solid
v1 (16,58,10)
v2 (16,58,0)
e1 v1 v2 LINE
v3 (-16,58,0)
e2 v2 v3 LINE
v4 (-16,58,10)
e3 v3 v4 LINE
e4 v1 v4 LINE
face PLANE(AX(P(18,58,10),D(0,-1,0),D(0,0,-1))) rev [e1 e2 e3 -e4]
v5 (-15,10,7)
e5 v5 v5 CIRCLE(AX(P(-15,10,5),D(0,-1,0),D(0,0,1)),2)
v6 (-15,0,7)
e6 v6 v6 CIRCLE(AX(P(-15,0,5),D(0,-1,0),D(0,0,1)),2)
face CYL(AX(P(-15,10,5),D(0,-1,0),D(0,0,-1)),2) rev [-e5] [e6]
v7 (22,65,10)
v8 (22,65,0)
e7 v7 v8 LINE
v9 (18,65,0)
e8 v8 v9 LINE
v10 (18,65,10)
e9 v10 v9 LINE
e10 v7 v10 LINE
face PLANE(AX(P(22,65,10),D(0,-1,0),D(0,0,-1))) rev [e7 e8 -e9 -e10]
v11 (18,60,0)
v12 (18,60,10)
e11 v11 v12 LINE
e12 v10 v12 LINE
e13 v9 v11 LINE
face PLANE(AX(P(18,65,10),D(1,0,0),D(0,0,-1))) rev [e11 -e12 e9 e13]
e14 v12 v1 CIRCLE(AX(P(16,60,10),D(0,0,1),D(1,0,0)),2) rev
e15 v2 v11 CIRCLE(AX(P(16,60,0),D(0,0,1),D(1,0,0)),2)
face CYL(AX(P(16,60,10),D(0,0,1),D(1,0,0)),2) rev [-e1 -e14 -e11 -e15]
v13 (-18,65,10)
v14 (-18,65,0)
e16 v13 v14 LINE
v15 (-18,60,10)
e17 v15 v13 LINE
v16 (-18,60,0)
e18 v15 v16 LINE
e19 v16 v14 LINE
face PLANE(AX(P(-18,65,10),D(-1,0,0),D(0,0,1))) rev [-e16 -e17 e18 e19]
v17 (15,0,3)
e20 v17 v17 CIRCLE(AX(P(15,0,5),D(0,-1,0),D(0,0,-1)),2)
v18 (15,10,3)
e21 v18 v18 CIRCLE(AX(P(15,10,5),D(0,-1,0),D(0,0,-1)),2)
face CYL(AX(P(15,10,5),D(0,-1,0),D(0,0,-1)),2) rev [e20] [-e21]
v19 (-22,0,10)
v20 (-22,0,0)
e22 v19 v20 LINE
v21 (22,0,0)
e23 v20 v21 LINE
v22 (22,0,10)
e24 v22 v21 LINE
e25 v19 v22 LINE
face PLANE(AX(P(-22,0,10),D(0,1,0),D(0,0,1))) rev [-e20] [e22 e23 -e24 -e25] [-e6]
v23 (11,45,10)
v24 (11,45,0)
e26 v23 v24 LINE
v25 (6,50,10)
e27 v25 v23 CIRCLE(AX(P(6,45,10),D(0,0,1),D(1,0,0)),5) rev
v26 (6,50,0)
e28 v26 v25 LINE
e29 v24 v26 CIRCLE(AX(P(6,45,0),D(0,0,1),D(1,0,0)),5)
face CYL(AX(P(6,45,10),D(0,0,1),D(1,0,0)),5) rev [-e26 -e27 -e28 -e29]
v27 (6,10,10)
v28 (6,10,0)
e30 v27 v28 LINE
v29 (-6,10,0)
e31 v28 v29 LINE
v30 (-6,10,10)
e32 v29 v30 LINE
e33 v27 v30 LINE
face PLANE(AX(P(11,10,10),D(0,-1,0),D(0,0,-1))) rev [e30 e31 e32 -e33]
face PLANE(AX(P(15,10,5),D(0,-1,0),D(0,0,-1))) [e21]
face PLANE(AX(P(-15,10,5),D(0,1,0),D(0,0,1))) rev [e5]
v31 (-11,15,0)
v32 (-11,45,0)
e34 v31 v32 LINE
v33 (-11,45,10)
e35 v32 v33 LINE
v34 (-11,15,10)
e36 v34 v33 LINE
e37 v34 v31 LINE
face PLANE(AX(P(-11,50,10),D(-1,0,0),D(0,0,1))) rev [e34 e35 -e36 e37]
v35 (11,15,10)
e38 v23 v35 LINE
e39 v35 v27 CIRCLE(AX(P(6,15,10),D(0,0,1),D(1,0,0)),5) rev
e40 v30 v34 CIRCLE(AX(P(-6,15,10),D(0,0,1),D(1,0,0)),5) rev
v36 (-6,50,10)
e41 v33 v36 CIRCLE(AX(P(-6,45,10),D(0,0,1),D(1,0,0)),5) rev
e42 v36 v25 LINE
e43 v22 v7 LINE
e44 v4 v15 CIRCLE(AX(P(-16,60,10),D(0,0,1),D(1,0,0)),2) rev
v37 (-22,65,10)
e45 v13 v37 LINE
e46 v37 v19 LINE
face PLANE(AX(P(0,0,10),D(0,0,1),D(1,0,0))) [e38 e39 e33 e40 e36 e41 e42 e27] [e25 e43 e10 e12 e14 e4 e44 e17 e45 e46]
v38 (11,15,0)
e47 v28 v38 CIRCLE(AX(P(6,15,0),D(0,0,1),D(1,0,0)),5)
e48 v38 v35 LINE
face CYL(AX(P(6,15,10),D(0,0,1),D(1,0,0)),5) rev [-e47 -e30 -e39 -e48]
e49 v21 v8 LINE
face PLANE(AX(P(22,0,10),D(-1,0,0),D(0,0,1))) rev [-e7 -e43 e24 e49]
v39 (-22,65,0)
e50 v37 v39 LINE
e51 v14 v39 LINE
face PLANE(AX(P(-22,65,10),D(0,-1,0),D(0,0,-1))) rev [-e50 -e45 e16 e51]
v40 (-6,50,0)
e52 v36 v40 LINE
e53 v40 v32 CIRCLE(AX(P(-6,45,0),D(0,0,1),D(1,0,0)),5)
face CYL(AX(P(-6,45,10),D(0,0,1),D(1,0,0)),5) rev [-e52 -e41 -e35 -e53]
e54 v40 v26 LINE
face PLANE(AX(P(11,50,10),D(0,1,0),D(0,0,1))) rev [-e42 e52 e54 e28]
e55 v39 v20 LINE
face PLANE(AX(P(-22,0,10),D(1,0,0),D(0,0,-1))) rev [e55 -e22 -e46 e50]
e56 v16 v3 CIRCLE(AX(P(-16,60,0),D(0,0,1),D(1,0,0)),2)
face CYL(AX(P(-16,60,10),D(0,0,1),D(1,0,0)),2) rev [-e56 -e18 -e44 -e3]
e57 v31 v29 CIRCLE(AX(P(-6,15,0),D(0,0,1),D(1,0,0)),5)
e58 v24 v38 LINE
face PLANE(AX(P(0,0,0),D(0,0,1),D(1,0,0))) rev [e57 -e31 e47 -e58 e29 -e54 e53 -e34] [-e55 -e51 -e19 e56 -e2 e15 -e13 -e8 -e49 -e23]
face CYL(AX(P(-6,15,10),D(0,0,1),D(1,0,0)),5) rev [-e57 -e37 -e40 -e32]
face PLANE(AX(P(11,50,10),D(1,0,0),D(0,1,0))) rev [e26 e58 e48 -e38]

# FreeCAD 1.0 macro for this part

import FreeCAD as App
import Part
import Sketcher
Q = App.Units.Quantity


def edges_at(feature, points):
    """Names of the edges that pass closest to the given points."""
    edges = feature.Shape.Edges
    near = lambda p: min(range(len(edges)), key=lambda i: edges[i].distToShape(Part.Vertex(*p))[0])
    return sorted({f"Edge{near(p) + 1}" for p in points})


def add_polygon(sketch, points):
    """Adds a closed chain of lines whose ends are joined by coincident constraints."""
    first, n = sketch.GeometryCount, len(points)
    for a, b in zip(points, points[1:] + points[:1]):
        sketch.addGeometry(Part.LineSegment(App.Vector(*a, 0), App.Vector(*b, 0)), False)
    for i in range(n):
        sketch.addConstraint(Sketcher.Constraint("Coincident", first + i, 2, first + (i + 1) % n, 1))

doc = App.newDocument("Part")
params = doc.addObject("Spreadsheet::Sheet", "Params")
for row, (alias, value) in enumerate([
    ("sketch1_width", "44 mm"),
    ("sketch1_width2", "4 mm"),
    ("sketch1_height", "65 mm"),
    ("sketch1_height2", "7 mm"),
    ("pad1_length", "10 mm"),
    ("sketch2_diameter", "4 mm"),
    ("pocket1_length", "10 mm"),
    ("fillet_radius", "2 mm"),
    ("sketch3_width", "22 mm"),
    ("sketch3_height", "40 mm"),
    ("fillet2_radius", "5 mm"),
], start=1):
    params.set(f"A{row}", alias)
    params.set(f"B{row}", "=" + value)
    params.setAlias(f"B{row}", alias)

body = doc.addObject("PartDesign::Body", "Body")

sketch1 = body.newObject("Sketcher::SketchObject", "Sketch")
sketch1.AttachmentSupport = (doc.getObject("XY_Plane"), [""])
sketch1.MapMode = "FlatFace"
add_polygon(sketch1, [(-22, 0), (22, 0), (22, 65), (18, 65), (18, 58), (-18, 58), (-18, 65), (-22, 65)])
sketch1.addConstraint(Sketcher.Constraint("Horizontal", 0))
sketch1.addConstraint(Sketcher.Constraint("Vertical", 1))
sketch1.addConstraint(Sketcher.Constraint("Horizontal", 2))
sketch1.addConstraint(Sketcher.Constraint("Vertical", 3))
sketch1.addConstraint(Sketcher.Constraint("Horizontal", 4))
sketch1.addConstraint(Sketcher.Constraint("Vertical", 5))
sketch1.addConstraint(Sketcher.Constraint("Horizontal", 6))
sketch1.addConstraint(Sketcher.Constraint("Vertical", 7))
sketch1.addConstraint(Sketcher.Constraint("Symmetric", 0, 2, 7, 2, -1, 1))
sketch1.addConstraint(Sketcher.Constraint("Symmetric", 2, 2, 5, 2, -2))
sketch1.addConstraint(Sketcher.Constraint("DistanceX", 0, 1, 0, 2, Q("44 mm")))
sketch1.addConstraint(Sketcher.Constraint("DistanceX", 2, 2, 2, 1, Q("4 mm")))
sketch1.addConstraint(Sketcher.Constraint("DistanceY", 1, 1, 1, 2, Q("65 mm")))
sketch1.addConstraint(Sketcher.Constraint("DistanceY", 3, 2, 3, 1, Q("7 mm")))
sketch1.setExpression("Constraints[18]", "Params.sketch1_width")
sketch1.setExpression("Constraints[19]", "Params.sketch1_width2")
sketch1.setExpression("Constraints[20]", "Params.sketch1_height")
sketch1.setExpression("Constraints[21]", "Params.sketch1_height2")
pad1 = body.newObject("PartDesign::Pad", "Pad")
pad1.Profile = sketch1
pad1.setExpression("Length", "Params.pad1_length")

sketch2 = body.newObject("Sketcher::SketchObject", "Sketch001")
sketch2.AttachmentSupport = (doc.getObject("XZ_Plane"), [""])
sketch2.MapMode = "FlatFace"
sketch2.addGeometry(Part.Circle(App.Vector(15, 5, 0), App.Vector(0, 0, 1), 2), False)
sketch2.addGeometry(Part.Circle(App.Vector(-15, 5, 0), App.Vector(0, 0, 1), 2), False)
sketch2.addConstraint(Sketcher.Constraint("Equal", 0, 1))
sketch2.addConstraint(Sketcher.Constraint("Symmetric", 0, 3, 1, 3, -2))
sketch2.addConstraint(Sketcher.Constraint("Diameter", 0, Q("4 mm")))
sketch2.addConstraint(Sketcher.Constraint("DistanceX", -1, 1, 0, 3, Q("15 mm")))
sketch2.addConstraint(Sketcher.Constraint("DistanceY", -1, 1, 0, 3, Q("5 mm")))
sketch2.setExpression("Constraints[2]", "Params.sketch2_diameter")
pocket1 = body.newObject("PartDesign::Pocket", "Pocket")
pocket1.Profile = sketch2
pocket1.setExpression("Length", "Params.pocket1_length")
doc.recompute()

fillet = body.newObject("PartDesign::Fillet", "Fillet")
fillet.Base = (pocket1, edges_at(pocket1, [(-18, 58, 5), (18, 58, 5)]))
fillet.setExpression("Radius", "Params.fillet_radius")

sketch3 = body.newObject("Sketcher::SketchObject", "Sketch002")
sketch3.AttachmentSupport = (doc.getObject("XY_Plane"), [""])
sketch3.MapMode = "FlatFace"
add_polygon(sketch3, [(11, 50), (11, 10), (-11, 10), (-11, 50)])
sketch3.addConstraint(Sketcher.Constraint("Vertical", 0))
sketch3.addConstraint(Sketcher.Constraint("Horizontal", 1))
sketch3.addConstraint(Sketcher.Constraint("Vertical", 2))
sketch3.addConstraint(Sketcher.Constraint("Horizontal", 3))
sketch3.addConstraint(Sketcher.Constraint("DistanceX", 1, 2, 1, 1, Q("22 mm")))
sketch3.addConstraint(Sketcher.Constraint("DistanceY", 0, 2, 0, 1, Q("40 mm")))
sketch3.addConstraint(Sketcher.Constraint("DistanceX", -1, 1, 0, 2, Q("11 mm")))
sketch3.addConstraint(Sketcher.Constraint("DistanceY", -1, 1, 0, 2, Q("10 mm")))
sketch3.setExpression("Constraints[8]", "Params.sketch3_width")
sketch3.setExpression("Constraints[9]", "Params.sketch3_height")
pocket2 = body.newObject("PartDesign::Pocket", "Pocket001")
pocket2.Profile = sketch3
pocket2.Type = "ThroughAll"
pocket2.Reversed = True
doc.recompute()

fillet2 = body.newObject("PartDesign::Fillet", "Fillet001")
fillet2.Base = (pocket2, edges_at(pocket2, [
    (11, 10, 5),
    (11, 50, 5),
    (-11, 50, 5),
    (-11, 10, 5),
]))
fillet2.setExpression("Radius", "Params.fillet2_radius")

doc.recompute()
